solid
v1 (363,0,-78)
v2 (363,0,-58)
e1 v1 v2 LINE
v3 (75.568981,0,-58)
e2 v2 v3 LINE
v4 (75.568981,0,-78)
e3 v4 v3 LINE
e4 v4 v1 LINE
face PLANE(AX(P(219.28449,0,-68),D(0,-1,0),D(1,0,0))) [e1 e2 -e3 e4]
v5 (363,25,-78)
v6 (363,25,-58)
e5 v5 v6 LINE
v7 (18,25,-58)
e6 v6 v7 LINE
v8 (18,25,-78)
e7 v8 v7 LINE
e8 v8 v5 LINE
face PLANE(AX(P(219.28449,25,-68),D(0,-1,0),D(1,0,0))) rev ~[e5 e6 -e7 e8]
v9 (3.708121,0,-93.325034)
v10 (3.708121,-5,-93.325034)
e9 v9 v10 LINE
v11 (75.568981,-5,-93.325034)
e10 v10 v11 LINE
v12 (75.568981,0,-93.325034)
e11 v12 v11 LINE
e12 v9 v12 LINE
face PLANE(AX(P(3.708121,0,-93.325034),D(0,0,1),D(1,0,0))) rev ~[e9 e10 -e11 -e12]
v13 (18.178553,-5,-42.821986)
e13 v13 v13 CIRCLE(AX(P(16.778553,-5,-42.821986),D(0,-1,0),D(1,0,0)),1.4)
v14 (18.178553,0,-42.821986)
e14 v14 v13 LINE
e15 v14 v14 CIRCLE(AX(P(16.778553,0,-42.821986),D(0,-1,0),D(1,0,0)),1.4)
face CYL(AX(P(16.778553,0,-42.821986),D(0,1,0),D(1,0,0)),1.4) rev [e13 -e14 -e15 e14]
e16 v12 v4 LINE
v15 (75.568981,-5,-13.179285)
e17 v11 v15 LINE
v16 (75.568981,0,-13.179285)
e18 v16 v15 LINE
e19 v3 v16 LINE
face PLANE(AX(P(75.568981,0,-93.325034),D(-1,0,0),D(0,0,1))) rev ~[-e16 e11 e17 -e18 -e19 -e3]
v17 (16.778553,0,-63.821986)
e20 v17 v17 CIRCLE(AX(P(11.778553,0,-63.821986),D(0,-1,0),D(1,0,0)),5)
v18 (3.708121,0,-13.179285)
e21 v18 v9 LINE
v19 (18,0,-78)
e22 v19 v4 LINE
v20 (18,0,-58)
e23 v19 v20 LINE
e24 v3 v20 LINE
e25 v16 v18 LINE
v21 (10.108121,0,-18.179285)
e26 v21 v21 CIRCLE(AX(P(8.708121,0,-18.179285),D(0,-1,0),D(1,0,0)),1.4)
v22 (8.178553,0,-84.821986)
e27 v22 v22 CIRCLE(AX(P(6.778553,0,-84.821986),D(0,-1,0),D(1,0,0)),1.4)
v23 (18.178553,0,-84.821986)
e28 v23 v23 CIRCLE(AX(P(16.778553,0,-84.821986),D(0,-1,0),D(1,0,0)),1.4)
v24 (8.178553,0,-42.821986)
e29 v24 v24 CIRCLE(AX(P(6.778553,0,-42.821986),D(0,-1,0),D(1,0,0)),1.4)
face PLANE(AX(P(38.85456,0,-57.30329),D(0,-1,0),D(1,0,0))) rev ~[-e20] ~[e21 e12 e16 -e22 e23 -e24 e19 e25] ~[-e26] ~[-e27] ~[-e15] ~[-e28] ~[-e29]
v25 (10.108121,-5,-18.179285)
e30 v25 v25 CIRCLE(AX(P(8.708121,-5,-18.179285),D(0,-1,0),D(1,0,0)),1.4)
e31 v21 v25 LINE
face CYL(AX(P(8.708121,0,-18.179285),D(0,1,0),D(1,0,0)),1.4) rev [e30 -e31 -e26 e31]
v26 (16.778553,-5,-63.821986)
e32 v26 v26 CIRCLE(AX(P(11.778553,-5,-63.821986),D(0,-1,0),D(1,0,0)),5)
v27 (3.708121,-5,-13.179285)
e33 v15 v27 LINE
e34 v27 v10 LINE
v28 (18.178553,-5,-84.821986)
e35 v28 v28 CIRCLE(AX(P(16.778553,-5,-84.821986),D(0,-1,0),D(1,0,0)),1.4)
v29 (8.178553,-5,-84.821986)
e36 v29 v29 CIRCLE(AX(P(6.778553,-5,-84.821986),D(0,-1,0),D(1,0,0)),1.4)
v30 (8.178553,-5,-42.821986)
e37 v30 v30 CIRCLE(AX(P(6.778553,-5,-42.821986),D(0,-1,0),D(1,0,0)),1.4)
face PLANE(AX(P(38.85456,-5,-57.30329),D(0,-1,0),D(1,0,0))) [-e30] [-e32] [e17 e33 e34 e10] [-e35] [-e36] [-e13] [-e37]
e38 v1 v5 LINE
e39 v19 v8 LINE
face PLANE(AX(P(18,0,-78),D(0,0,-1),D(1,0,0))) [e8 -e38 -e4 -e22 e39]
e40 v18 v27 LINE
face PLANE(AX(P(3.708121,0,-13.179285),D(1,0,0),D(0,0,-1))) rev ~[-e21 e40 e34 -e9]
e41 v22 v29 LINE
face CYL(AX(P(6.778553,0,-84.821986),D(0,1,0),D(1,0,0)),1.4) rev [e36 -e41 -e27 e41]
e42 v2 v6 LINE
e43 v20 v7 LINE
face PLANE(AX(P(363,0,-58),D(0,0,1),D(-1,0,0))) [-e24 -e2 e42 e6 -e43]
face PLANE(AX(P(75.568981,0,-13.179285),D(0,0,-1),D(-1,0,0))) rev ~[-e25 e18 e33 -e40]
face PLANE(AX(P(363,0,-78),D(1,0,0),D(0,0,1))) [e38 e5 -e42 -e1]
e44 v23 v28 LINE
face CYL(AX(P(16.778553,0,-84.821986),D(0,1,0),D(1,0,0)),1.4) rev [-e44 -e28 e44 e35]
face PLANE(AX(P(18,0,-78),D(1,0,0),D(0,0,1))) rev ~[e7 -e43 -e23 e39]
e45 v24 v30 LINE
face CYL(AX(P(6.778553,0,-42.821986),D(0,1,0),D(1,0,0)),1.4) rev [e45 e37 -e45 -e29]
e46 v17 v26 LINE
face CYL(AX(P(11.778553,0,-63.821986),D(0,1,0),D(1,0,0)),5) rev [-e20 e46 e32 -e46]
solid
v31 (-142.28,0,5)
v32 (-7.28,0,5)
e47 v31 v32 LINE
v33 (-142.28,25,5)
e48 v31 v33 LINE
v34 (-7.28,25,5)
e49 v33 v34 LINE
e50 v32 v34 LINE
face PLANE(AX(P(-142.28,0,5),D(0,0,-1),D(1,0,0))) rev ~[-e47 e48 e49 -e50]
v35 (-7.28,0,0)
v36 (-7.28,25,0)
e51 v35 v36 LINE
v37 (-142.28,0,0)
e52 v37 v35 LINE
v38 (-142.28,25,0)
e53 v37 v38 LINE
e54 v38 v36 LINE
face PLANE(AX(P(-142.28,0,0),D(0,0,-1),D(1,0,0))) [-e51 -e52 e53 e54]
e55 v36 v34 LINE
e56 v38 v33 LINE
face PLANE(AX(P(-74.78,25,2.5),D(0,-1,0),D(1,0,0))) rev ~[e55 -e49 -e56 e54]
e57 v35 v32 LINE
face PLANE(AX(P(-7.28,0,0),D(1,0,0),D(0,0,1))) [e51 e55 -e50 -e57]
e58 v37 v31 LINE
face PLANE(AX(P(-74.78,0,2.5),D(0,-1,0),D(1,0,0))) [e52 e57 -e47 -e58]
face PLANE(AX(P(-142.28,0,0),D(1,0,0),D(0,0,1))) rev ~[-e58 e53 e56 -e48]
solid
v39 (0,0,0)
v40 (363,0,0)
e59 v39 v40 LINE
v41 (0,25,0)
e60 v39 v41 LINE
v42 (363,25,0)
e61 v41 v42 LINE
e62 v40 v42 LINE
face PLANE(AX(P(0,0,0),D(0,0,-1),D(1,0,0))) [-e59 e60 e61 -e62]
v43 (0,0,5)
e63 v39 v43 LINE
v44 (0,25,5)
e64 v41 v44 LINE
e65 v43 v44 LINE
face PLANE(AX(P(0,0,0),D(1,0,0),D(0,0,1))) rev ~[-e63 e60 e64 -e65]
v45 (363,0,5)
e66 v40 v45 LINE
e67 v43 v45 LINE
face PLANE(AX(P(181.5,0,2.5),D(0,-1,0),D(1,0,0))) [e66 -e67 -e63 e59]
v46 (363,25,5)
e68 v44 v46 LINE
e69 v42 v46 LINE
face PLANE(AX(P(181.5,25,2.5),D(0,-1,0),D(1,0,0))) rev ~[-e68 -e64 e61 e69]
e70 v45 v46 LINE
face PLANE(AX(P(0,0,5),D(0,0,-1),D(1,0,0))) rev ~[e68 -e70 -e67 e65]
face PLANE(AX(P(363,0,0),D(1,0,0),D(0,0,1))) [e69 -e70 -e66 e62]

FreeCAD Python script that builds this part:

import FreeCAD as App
import Part
import Sketcher
from FreeCAD import Vector

doc = App.newDocument("Part")
body = doc.addObject("PartDesign::Body", "Body")

# Sketch on XZ plane
sketch1 = body.newObject("Sketcher::SketchObject", "Sketch")
sketch1.AttachmentSupport = (doc.getObject("XZ_Plane"), [""])
sketch1.MapMode = "FlatFace"
sketch1.addGeometry(Part.LineSegment(Vector(75.6, -13.2, 0), Vector(3.7, -13.2, 0)), False)
sketch1.addGeometry(Part.LineSegment(Vector(3.7, -13.2, 0), Vector(3.7, -93.3, 0)), False)
sketch1.addGeometry(Part.LineSegment(Vector(3.7, -93.3, 0), Vector(75.6, -93.3, 0)), False)
sketch1.addGeometry(Part.LineSegment(Vector(75.6, -93.3, 0), Vector(75.6, -13.2, 0)), False)
sketch1.addGeometry(Part.Circle(Vector(6.8, -84.8, 0), Vector(0, 0, 1), 1.4), False)
sketch1.addGeometry(Part.Circle(Vector(16.8, -84.8, 0), Vector(0, 0, 1), 1.4), False)
sketch1.addGeometry(Part.Circle(Vector(11.8, -63.8, 0), Vector(0, 0, 1), 5), False)
sketch1.addGeometry(Part.Circle(Vector(6.8, -42.8, 0), Vector(0, 0, 1), 1.4), False)
sketch1.addGeometry(Part.Circle(Vector(8.7, -18.2, 0), Vector(0, 0, 1), 1.4), False)
sketch1.addGeometry(Part.Circle(Vector(16.8, -42.8, 0), Vector(0, 0, 1), 1.4), False)
sketch1.addConstraint(Sketcher.Constraint("Coincident", 0, 2, 1, 1))
sketch1.addConstraint(Sketcher.Constraint("Coincident", 1, 2, 2, 1))
sketch1.addConstraint(Sketcher.Constraint("Coincident", 2, 2, 3, 1))
sketch1.addConstraint(Sketcher.Constraint("Coincident", 3, 2, 0, 1))
sketch1.addConstraint(Sketcher.Constraint("Horizontal", 0))
sketch1.addConstraint(Sketcher.Constraint("Vertical", 1))
sketch1.addConstraint(Sketcher.Constraint("Horizontal", 2))
sketch1.addConstraint(Sketcher.Constraint("Vertical", 3))
sketch1.addConstraint(Sketcher.Constraint("Equal", 4, 5))
sketch1.addConstraint(Sketcher.Constraint("Equal", 5, 7))
sketch1.addConstraint(Sketcher.Constraint("Equal", 7, 8))
sketch1.addConstraint(Sketcher.Constraint("Equal", 8, 9))
sketch1.addConstraint(Sketcher.Constraint("Horizontal", 4, 3, 5, 3))
sketch1.addConstraint(Sketcher.Constraint("Horizontal", 7, 3, 9, 3))
sketch1.addConstraint(Sketcher.Constraint("Vertical", 4, 3, 7, 3))
sketch1.addConstraint(Sketcher.Constraint("Vertical", 5, 3, 9, 3))
sketch1.addConstraint(Sketcher.Constraint("Diameter", 6, 10.0))
sketch1.addConstraint(Sketcher.Constraint("Diameter", 4, 2.8))
sketch1.addConstraint(Sketcher.Constraint("DistanceX", 4, 3, 5, 3, 10.0))
sketch1.addConstraint(Sketcher.Constraint("DistanceX", 6, 3, 5, 3, 5.0))
sketch1.addConstraint(Sketcher.Constraint("DistanceY", 5, 3, 6, 3, 21.0))
sketch1.addConstraint(Sketcher.Constraint("DistanceY", 6, 3, 7, 3, 21.0))
sketch1.addConstraint(Sketcher.Constraint("DistanceX", 0, 2, 8, 3, 5.0))
sketch1.addConstraint(Sketcher.Constraint("DistanceY", 8, 3, 0, 2, 5.0))
sketch1.addConstraint(Sketcher.Constraint("DistanceX", 0, 2, 0, 1, 71.86086))
sketch1.addConstraint(Sketcher.Constraint("DistanceY", 1, 2, 1, 1, 80.145748))
sketch1.addConstraint(Sketcher.Constraint("DistanceY", 7, 3, 8, 3, 24.642701))
sketch1.addConstraint(Sketcher.Constraint("DistanceX", -1, 1, 8, 3, 8.708121))
sketch1.addConstraint(Sketcher.Constraint("DistanceX", -1, 1, 4, 3, 6.778553))
sketch1.addConstraint(Sketcher.Constraint("DistanceY", 4, 3, -1, 1, 84.821986))
pad1 = body.newObject("PartDesign::Pad", "Pad")
pad1.Profile = sketch1
pad1.Length = 5

# Sketch on XZ plane
sketch2 = body.newObject("Sketcher::SketchObject", "Sketch001")
sketch2.AttachmentSupport = (doc.getObject("XZ_Plane"), [""])
sketch2.MapMode = "FlatFace"
sketch2.addGeometry(Part.LineSegment(Vector(363, -78, 0), Vector(363, -58, 0)), False)
sketch2.addGeometry(Part.LineSegment(Vector(363, -58, 0), Vector(18, -58, 0)), False)
sketch2.addGeometry(Part.LineSegment(Vector(18, -58, 0), Vector(18, -78, 0)), False)
sketch2.addGeometry(Part.LineSegment(Vector(18, -78, 0), Vector(363, -78, 0)), False)
sketch2.addConstraint(Sketcher.Constraint("Coincident", 0, 2, 1, 1))
sketch2.addConstraint(Sketcher.Constraint("Coincident", 1, 2, 2, 1))
sketch2.addConstraint(Sketcher.Constraint("Coincident", 2, 2, 3, 1))
sketch2.addConstraint(Sketcher.Constraint("Coincident", 3, 2, 0, 1))
sketch2.addConstraint(Sketcher.Constraint("Vertical", 0))
sketch2.addConstraint(Sketcher.Constraint("Horizontal", 1))
sketch2.addConstraint(Sketcher.Constraint("Vertical", 2))
sketch2.addConstraint(Sketcher.Constraint("Horizontal", 3))
sketch2.addConstraint(Sketcher.Constraint("DistanceX", 1, 2, 1, 1, 345.0))
sketch2.addConstraint(Sketcher.Constraint("DistanceY", 0, 1, 0, 2, 20.0))
sketch2.addConstraint(Sketcher.Constraint("DistanceX", -1, 1, 0, 2, 363.0))
sketch2.addConstraint(Sketcher.Constraint("DistanceY", 0, 2, -1, 1, 58.0))
pad2 = body.newObject("PartDesign::Pad", "Pad001")
pad2.Profile = sketch2
pad2.Length = 25
pad2.Reversed = True
body2 = doc.addObject("PartDesign::Body", "Body001")

# Sketch on XZ plane
sketch3 = body2.newObject("Sketcher::SketchObject", "Sketch002")
sketch3.AttachmentSupport = (doc.getObject("XZ_Plane001"), [""])
sketch3.MapMode = "FlatFace"
sketch3.addGeometry(Part.LineSegment(Vector(-142, 5, 0), Vector(-142, 0, 0)), False)
sketch3.addGeometry(Part.LineSegment(Vector(-142, 0, 0), Vector(-7, 0, 0)), False)
sketch3.addGeometry(Part.LineSegment(Vector(-7, 0, 0), Vector(-7, 5, 0)), False)
sketch3.addGeometry(Part.LineSegment(Vector(-7, 5, 0), Vector(-142, 5, 0)), False)
sketch3.addConstraint(Sketcher.Constraint("Coincident", 0, 2, 1, 1))
sketch3.addConstraint(Sketcher.Constraint("Coincident", 1, 2, 2, 1))
sketch3.addConstraint(Sketcher.Constraint("Coincident", 2, 2, 3, 1))
sketch3.addConstraint(Sketcher.Constraint("Coincident", 3, 2, 0, 1))
sketch3.addConstraint(Sketcher.Constraint("Vertical", 0))
sketch3.addConstraint(Sketcher.Constraint("Horizontal", 1))
sketch3.addConstraint(Sketcher.Constraint("Vertical", 2))
sketch3.addConstraint(Sketcher.Constraint("Horizontal", 3))
sketch3.addConstraint(Sketcher.Constraint("PointOnObject", 0, 2, -1))
sketch3.addConstraint(Sketcher.Constraint("DistanceX", 1, 1, 1, 2, 135.0))
sketch3.addConstraint(Sketcher.Constraint("DistanceY", 0, 2, 0, 1, 5.0))
sketch3.addConstraint(Sketcher.Constraint("DistanceX", 0, 2, -1, 1, 142.28))
pad3 = body2.newObject("PartDesign::Pad", "Pad002")
pad3.Profile = sketch3
pad3.Length = 25
pad3.Reversed = True
body3 = doc.addObject("PartDesign::Body", "Body002")

# Sketch on XZ plane
sketch4 = body3.newObject("Sketcher::SketchObject", "Sketch003")
sketch4.AttachmentSupport = (doc.getObject("XZ_Plane002"), [""])
sketch4.MapMode = "FlatFace"
sketch4.addGeometry(Part.LineSegment(Vector(0, 5, 0), Vector(0, 0, 0)), False)
sketch4.addGeometry(Part.LineSegment(Vector(0, 0, 0), Vector(363, 0, 0)), False)
sketch4.addGeometry(Part.LineSegment(Vector(363, 0, 0), Vector(363, 5, 0)), False)
sketch4.addGeometry(Part.LineSegment(Vector(363, 5, 0), Vector(0, 5, 0)), False)
sketch4.addConstraint(Sketcher.Constraint("Coincident", 0, 2, 1, 1))
sketch4.addConstraint(Sketcher.Constraint("Coincident", 1, 2, 2, 1))
sketch4.addConstraint(Sketcher.Constraint("Coincident", 2, 2, 3, 1))
sketch4.addConstraint(Sketcher.Constraint("Coincident", 3, 2, 0, 1))
sketch4.addConstraint(Sketcher.Constraint("Vertical", 0))
sketch4.addConstraint(Sketcher.Constraint("Horizontal", 1))
sketch4.addConstraint(Sketcher.Constraint("Vertical", 2))
sketch4.addConstraint(Sketcher.Constraint("Horizontal", 3))
sketch4.addConstraint(Sketcher.Constraint("Coincident", 0, 2, -1, 1))
sketch4.addConstraint(Sketcher.Constraint("DistanceX", 1, 1, 1, 2, 363.0))
sketch4.addConstraint(Sketcher.Constraint("DistanceY", 0, 2, 0, 1, 5.0))
pad4 = body3.newObject("PartDesign::Pad", "Pad003")
pad4.Profile = sketch4
pad4.Length = 25
pad4.Reversed = True

doc.recompute()
